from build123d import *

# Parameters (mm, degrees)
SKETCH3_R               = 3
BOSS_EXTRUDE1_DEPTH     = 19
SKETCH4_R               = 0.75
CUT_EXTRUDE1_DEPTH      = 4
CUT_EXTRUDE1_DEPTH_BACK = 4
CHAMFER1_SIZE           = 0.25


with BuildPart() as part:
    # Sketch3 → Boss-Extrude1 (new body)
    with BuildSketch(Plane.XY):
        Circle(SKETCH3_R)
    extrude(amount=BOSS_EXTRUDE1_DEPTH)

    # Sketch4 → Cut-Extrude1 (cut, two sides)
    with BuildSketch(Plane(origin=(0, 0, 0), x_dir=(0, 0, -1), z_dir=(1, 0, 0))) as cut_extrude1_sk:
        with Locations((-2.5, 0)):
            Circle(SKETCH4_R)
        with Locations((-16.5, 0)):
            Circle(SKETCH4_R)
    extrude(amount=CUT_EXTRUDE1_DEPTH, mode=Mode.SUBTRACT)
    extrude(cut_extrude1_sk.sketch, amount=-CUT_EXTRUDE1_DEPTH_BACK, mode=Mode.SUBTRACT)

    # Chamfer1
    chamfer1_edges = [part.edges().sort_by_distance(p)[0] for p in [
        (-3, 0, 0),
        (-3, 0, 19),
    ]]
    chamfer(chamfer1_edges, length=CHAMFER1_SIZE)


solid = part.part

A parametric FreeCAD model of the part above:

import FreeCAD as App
import Part
import Sketcher


def edges_at(feature, points):
    """Names of the edges that pass closest to the given points."""
    edges = feature.Shape.Edges
    near = lambda p: min(range(len(edges)), key=lambda i: edges[i].distToShape(Part.Vertex(*p))[0])
    return sorted({f"Edge{near(p) + 1}" for p in points})

doc = App.newDocument("Part")
params = doc.addObject("Spreadsheet::Sheet", "Params")
for row, (alias, value) in enumerate([
    ("sketch1_diameter", "6 mm"),
    ("pad1_length", "19 mm"),
    ("sketch2_diameter", "1.5 mm"),
    ("chamfer_size", "0.25 mm"),
], start=1):
    params.set(f"A{row}", alias)
    params.set(f"B{row}", "=" + value)
    params.setAlias(f"B{row}", alias)

body = doc.addObject("PartDesign::Body", "Body")

# Sketch on XY plane
sketch1 = body.newObject("Sketcher::SketchObject", "Sketch")
sketch1.AttachmentSupport = (doc.getObject("XY_Plane"), [""])
sketch1.MapMode = "FlatFace"
sketch1.addGeometry(Part.Circle(App.Vector(0, 0, 0), App.Vector(0, 0, 1), 3), False)
sketch1.addConstraint(Sketcher.Constraint("Coincident", 0, 3, -1, 1))
sketch1.addConstraint(Sketcher.Constraint("Diameter", 0, 6.0))
sketch1.setExpression("Constraints[1]", "Params.sketch1_diameter")
pad1 = body.newObject("PartDesign::Pad", "Pad")
pad1.Profile = sketch1
pad1.setExpression("Length", "Params.pad1_length")

# Sketch on YZ plane
sketch2 = body.newObject("Sketcher::SketchObject", "Sketch001")
sketch2.AttachmentSupport = (doc.getObject("YZ_Plane"), [""])
sketch2.MapMode = "FlatFace"
sketch2.addGeometry(Part.Circle(App.Vector(0, 2.5, 0), App.Vector(0, 0, 1), 0.8), False)
sketch2.addGeometry(Part.Circle(App.Vector(0, 16.5, 0), App.Vector(0, 0, 1), 0.8), False)
sketch2.addConstraint(Sketcher.Constraint("Equal", 0, 1))
sketch2.addConstraint(Sketcher.Constraint("PointOnObject", 0, 3, -2))
sketch2.addConstraint(Sketcher.Constraint("PointOnObject", 1, 3, -2))
sketch2.addConstraint(Sketcher.Constraint("Diameter", 0, 1.5))
sketch2.addConstraint(Sketcher.Constraint("DistanceY", 0, 3, 1, 3, 14.0))
sketch2.addConstraint(Sketcher.Constraint("DistanceY", -1, 1, 0, 3, 2.5))
sketch2.setExpression("Constraints[3]", "Params.sketch2_diameter")
pocket1 = body.newObject("PartDesign::Pocket", "Pocket")
pocket1.Profile = sketch2
pocket1.Type = "ThroughAll"
pocket1.Midplane = True
doc.recompute()

chamfer = body.newObject("PartDesign::Chamfer", "Chamfer")
chamfer.Base = (pocket1, edges_at(pocket1, [(-3, 0, 0), (-3, 0, 19)]))
chamfer.setExpression("Size", "Params.chamfer_size")

doc.recompute()
